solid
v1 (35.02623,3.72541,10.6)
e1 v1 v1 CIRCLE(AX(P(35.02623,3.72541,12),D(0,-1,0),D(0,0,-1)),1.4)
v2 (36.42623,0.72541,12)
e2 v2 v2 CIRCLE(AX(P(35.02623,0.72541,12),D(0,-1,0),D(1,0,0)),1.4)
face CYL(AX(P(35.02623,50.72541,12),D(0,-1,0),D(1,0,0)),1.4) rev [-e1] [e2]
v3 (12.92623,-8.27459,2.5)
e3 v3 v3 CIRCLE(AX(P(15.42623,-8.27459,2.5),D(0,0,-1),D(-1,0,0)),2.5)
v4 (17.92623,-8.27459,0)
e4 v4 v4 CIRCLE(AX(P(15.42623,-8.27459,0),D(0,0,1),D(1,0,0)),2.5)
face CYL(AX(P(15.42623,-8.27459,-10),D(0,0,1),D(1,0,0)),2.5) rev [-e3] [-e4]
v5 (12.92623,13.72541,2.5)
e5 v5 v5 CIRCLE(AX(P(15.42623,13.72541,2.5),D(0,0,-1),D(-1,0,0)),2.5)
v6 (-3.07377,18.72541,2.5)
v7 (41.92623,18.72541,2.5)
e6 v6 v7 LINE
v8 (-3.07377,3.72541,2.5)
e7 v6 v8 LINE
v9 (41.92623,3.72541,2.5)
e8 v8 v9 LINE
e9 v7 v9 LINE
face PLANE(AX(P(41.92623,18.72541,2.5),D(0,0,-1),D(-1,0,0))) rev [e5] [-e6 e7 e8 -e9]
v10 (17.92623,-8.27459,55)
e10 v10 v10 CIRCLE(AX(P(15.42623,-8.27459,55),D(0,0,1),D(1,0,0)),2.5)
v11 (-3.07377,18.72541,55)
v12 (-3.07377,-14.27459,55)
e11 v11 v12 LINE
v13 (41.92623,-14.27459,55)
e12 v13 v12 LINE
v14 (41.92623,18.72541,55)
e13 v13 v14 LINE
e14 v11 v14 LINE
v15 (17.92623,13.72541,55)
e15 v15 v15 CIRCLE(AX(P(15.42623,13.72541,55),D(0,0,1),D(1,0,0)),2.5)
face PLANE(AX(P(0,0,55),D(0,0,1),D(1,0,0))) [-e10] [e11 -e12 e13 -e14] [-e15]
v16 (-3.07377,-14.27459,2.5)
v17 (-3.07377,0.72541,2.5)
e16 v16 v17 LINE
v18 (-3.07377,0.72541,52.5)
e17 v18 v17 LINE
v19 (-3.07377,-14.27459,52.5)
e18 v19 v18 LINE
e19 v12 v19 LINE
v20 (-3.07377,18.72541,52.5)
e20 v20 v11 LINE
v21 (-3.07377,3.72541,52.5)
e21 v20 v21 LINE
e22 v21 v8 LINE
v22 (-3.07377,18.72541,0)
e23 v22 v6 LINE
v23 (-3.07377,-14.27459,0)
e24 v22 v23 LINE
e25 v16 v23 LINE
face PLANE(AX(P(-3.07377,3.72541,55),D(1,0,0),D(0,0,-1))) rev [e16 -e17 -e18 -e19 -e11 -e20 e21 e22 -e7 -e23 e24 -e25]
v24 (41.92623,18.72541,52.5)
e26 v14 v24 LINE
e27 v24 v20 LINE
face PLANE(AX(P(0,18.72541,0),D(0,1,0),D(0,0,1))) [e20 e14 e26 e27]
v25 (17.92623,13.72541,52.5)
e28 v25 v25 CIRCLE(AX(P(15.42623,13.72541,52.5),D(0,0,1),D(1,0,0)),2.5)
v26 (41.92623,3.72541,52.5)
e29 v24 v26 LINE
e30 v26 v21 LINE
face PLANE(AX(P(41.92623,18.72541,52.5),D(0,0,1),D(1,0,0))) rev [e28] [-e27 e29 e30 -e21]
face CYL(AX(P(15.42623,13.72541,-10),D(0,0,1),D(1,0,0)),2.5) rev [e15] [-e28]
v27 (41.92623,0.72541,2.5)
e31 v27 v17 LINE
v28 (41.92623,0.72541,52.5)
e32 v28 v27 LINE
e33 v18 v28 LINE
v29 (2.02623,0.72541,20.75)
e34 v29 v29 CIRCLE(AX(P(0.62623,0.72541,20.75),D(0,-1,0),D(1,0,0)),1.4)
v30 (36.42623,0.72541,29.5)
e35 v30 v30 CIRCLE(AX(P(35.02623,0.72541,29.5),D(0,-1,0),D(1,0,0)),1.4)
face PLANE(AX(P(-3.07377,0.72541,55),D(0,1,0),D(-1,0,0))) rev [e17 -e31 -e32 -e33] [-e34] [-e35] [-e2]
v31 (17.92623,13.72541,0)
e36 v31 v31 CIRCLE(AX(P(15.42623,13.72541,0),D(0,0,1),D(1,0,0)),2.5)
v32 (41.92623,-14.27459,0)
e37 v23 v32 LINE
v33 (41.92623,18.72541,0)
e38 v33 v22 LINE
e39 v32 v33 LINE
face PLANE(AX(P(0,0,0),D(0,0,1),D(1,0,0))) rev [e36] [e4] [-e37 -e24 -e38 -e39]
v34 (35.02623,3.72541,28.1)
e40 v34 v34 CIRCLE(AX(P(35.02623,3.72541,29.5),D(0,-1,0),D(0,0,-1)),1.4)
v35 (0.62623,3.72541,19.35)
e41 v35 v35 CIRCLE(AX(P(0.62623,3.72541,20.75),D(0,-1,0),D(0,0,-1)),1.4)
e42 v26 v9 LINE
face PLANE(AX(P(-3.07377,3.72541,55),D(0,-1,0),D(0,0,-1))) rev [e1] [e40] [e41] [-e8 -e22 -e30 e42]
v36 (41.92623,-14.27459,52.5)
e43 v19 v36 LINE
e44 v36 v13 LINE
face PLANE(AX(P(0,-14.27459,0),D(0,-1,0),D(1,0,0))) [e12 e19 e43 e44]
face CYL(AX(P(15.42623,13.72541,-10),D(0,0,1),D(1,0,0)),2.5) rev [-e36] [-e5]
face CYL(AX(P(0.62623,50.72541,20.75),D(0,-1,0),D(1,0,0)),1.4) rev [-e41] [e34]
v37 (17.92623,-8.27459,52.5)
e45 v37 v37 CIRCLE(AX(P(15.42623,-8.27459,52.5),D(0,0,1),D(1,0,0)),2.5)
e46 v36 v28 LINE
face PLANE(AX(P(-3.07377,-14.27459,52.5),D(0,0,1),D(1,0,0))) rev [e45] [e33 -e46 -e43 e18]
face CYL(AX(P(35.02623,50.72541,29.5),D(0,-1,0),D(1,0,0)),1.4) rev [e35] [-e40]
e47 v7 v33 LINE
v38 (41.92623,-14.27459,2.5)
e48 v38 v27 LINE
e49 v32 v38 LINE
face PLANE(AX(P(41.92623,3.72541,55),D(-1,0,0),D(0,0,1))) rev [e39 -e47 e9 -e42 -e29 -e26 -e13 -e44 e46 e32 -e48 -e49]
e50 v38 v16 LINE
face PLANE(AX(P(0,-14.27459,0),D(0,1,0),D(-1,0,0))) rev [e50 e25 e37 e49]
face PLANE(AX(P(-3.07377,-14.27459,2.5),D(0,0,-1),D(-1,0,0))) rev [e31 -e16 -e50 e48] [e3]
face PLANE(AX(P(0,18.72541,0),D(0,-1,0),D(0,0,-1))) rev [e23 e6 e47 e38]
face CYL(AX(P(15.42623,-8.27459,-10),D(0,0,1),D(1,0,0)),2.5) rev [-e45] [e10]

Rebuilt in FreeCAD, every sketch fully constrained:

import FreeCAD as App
import Part
import Sketcher


def add_polygon(sketch, points):
    """Adds a closed chain of lines whose ends are joined by coincident constraints."""
    first, n = sketch.GeometryCount, len(points)
    for a, b in zip(points, points[1:] + points[:1]):
        sketch.addGeometry(Part.LineSegment(App.Vector(*a, 0), App.Vector(*b, 0)), False)
    for i in range(n):
        sketch.addConstraint(Sketcher.Constraint("Coincident", first + i, 2, first + (i + 1) % n, 1))

doc = App.newDocument("Part")
params = doc.addObject("Spreadsheet::Sheet", "Params")
for row, (alias, value) in enumerate([
    ("sketch1_width", "45 mm"),
    ("sketch1_height", "3 mm"),
    ("pad1_length", "55 mm"),
    ("sketch2_diameter", "2.8 mm"),
    ("pocket1_length", "50 mm"),
    ("sketch3_width", "45 mm"),
    ("sketch3_height", "2.5 mm"),
    ("pad2_length", "15 mm"),
    ("sketch4_diameter", "5 mm"),
    ("pocket2_length", "65 mm"),
    ("sketch5_width", "45 mm"),
    ("sketch5_height", "2.5 mm"),
    ("pad3_length", "15 mm"),
    ("sketch6_diameter", "5 mm"),
    ("pocket3_length", "65 mm"),
], start=1):
    params.set(f"A{row}", alias)
    params.set(f"B{row}", "=" + value)
    params.setAlias(f"B{row}", alias)

body = doc.addObject("PartDesign::Body", "Body")

sketch1 = body.newObject("Sketcher::SketchObject", "Sketch")
sketch1.AttachmentSupport = (doc.getObject("XY_Plane"), [""])
sketch1.MapMode = "FlatFace"
add_polygon(sketch1, [(-3.1, 3.7), (-3.1, 0.7), (41.9, 0.7), (41.9, 3.7)])
sketch1.addConstraint([
    Sketcher.Constraint("Vertical", 0),
    Sketcher.Constraint("Horizontal", 1),
    Sketcher.Constraint("Vertical", 2),
    Sketcher.Constraint("Horizontal", 3),
    Sketcher.Constraint("DistanceX", 1, 1, 1, 2, 45.0),
    Sketcher.Constraint("DistanceY", 0, 2, 0, 1, 3.0),
    Sketcher.Constraint("DistanceX", 0, 2, -1, 1, 3.07377),
    Sketcher.Constraint("DistanceY", -1, 1, 0, 2, 0.72541),
])
sketch1.setExpression("Constraints[8]", "Params.sketch1_width")
sketch1.setExpression("Constraints[9]", "Params.sketch1_height")
pad1 = body.newObject("PartDesign::Pad", "Pad")
pad1.Profile = sketch1
pad1.setExpression("Length", "Params.pad1_length")

sketch2 = body.newObject("Sketcher::SketchObject", "Sketch001")
sketch2.AttachmentSupport = (doc.getObject("XZ_Plane"), [""])
sketch2.MapMode = "FlatFace"
sketch2.AttachmentOffset = App.Placement(App.Vector(0, 0, -0.72541), App.Rotation())
sketch2.addGeometry([
    Part.Circle(App.Vector(0.6, 20.8, 0), App.Vector(0, 0, 1), 1.4),
    Part.Circle(App.Vector(35, 12, 0), App.Vector(0, 0, 1), 1.4),
    Part.Circle(App.Vector(35, 29.5, 0), App.Vector(0, 0, 1), 1.4),
], False)
sketch2.addConstraint([
    Sketcher.Constraint("Equal", 0, 1),
    Sketcher.Constraint("Equal", 1, 2),
    Sketcher.Constraint("Vertical", 1, 3, 2, 3),
    Sketcher.Constraint("Diameter", 0, 2.8),
    Sketcher.Constraint("DistanceY", -1, 1, 1, 3, 12.0),
    Sketcher.Constraint("DistanceY", -1, 1, 2, 3, 29.5),
    Sketcher.Constraint("DistanceX", 0, 3, 1, 3, 34.4),
    Sketcher.Constraint("DistanceY", -1, 1, 0, 3, 20.75),
    Sketcher.Constraint("DistanceX", -1, 1, 0, 3, 0.62623),
])
sketch2.setExpression("Constraints[3]", "Params.sketch2_diameter")
pocket1 = body.newObject("PartDesign::Pocket", "Pocket")
pocket1.Profile = sketch2
pocket1.setExpression("Length", "Params.pocket1_length")

sketch3 = body.newObject("Sketcher::SketchObject", "Sketch002")
sketch3.AttachmentSupport = (doc.getObject("XZ_Plane"), [""])
sketch3.MapMode = "FlatFace"
sketch3.AttachmentOffset = App.Placement(App.Vector(0, 0, -0.72541), App.Rotation())
add_polygon(sketch3, [(-3.1, 55), (-3.1, 52.5), (41.9, 52.5), (41.9, 55)])
add_polygon(sketch3, [(-3.1, 2.5), (-3.1, 0), (41.9, 0), (41.9, 2.5)])
sketch3.addConstraint([
    Sketcher.Constraint("Vertical", 0),
    Sketcher.Constraint("Horizontal", 1),
    Sketcher.Constraint("Vertical", 2),
    Sketcher.Constraint("Horizontal", 3),
    Sketcher.Constraint("Vertical", 4),
    Sketcher.Constraint("Horizontal", 5),
    Sketcher.Constraint("Vertical", 6),
    Sketcher.Constraint("Horizontal", 7),
    Sketcher.Constraint("PointOnObject", 4, 2, -1),
    Sketcher.Constraint("Vertical", 3, 2, 4, 2),
    Sketcher.Constraint("Vertical", 2, 2, 5, 2),
    Sketcher.Constraint("Equal", 2, 4),
    Sketcher.Constraint("DistanceX", 1, 1, 1, 2, 45.0),
    Sketcher.Constraint("DistanceY", 0, 2, 0, 1, 2.5),
    Sketcher.Constraint("DistanceY", -1, 1, 2, 2, 55.0),
    Sketcher.Constraint("DistanceX", 0, 2, -1, 1, 3.07377),
])
sketch3.setExpression("Constraints[20]", "Params.sketch3_width")
sketch3.setExpression("Constraints[21]", "Params.sketch3_height")
pad2 = body.newObject("PartDesign::Pad", "Pad001")
pad2.Profile = sketch3
pad2.setExpression("Length", "Params.pad2_length")

sketch4 = body.newObject("Sketcher::SketchObject", "Sketch003")
sketch4.AttachmentSupport = (doc.getObject("XY_Plane"), [""])
sketch4.MapMode = "FlatFace"
sketch4.AttachmentOffset = App.Placement(App.Vector(0, 0, 55), App.Rotation())
sketch4.addGeometry(Part.Circle(App.Vector(15.4, -8.3, 0), App.Vector(0, 0, 1), 2.5), False)
sketch4.addConstraint([
    Sketcher.Constraint("Diameter", 0, 5.0),
    Sketcher.Constraint("DistanceX", -1, 1, 0, 3, 15.42623),
    Sketcher.Constraint("DistanceY", 0, 3, -1, 1, 8.27459),
])
sketch4.setExpression("Constraints[0]", "Params.sketch4_diameter")
pocket2 = body.newObject("PartDesign::Pocket", "Pocket001")
pocket2.Profile = sketch4
pocket2.setExpression("Length", "Params.pocket2_length")

sketch5 = body.newObject("Sketcher::SketchObject", "Sketch004")
sketch5.AttachmentSupport = (doc.getObject("XZ_Plane"), [""])
sketch5.MapMode = "FlatFace"
sketch5.AttachmentOffset = App.Placement(App.Vector(0, 0, -3.72541), App.Rotation())
add_polygon(sketch5, [(-3.1, 52.5), (-3.1, 55), (41.9, 55), (41.9, 52.5)])
add_polygon(sketch5, [(-3.1, 0), (-3.1, 2.5), (41.9, 2.5), (41.9, 0)])
sketch5.addConstraint([
    Sketcher.Constraint("Vertical", 0),
    Sketcher.Constraint("Horizontal", 1),
    Sketcher.Constraint("Vertical", 2),
    Sketcher.Constraint("Horizontal", 3),
    Sketcher.Constraint("Vertical", 4),
    Sketcher.Constraint("Horizontal", 5),
    Sketcher.Constraint("Vertical", 6),
    Sketcher.Constraint("Horizontal", 7),
    Sketcher.Constraint("PointOnObject", 6, 2, -1),
    Sketcher.Constraint("Vertical", 3, 2, 4, 2),
    Sketcher.Constraint("Vertical", 2, 2, 5, 2),
    Sketcher.Constraint("Equal", 2, 4),
    Sketcher.Constraint("DistanceX", 1, 1, 1, 2, 45.0),
    Sketcher.Constraint("DistanceY", 0, 1, 0, 2, 2.5),
    Sketcher.Constraint("DistanceY", -1, 1, 0, 2, 55.0),
    Sketcher.Constraint("DistanceX", 0, 2, -1, 1, 3.07377),
])
sketch5.setExpression("Constraints[20]", "Params.sketch5_width")
sketch5.setExpression("Constraints[21]", "Params.sketch5_height")
pad3 = body.newObject("PartDesign::Pad", "Pad002")
pad3.Profile = sketch5
pad3.setExpression("Length", "Params.pad3_length")
pad3.Reversed = True

sketch6 = body.newObject("Sketcher::SketchObject", "Sketch005")
sketch6.AttachmentSupport = (doc.getObject("XY_Plane"), [""])
sketch6.MapMode = "FlatFace"
sketch6.AttachmentOffset = App.Placement(App.Vector(0, 0, 55), App.Rotation())
sketch6.addGeometry(Part.Circle(App.Vector(15.4, 13.7, 0), App.Vector(0, 0, 1), 2.5), False)
sketch6.addConstraint([
    Sketcher.Constraint("Diameter", 0, 5.0),
    Sketcher.Constraint("DistanceX", -1, 1, 0, 3, 15.42623),
    Sketcher.Constraint("DistanceY", -1, 1, 0, 3, 13.72541),
])
sketch6.setExpression("Constraints[0]", "Params.sketch6_diameter")
pocket3 = body.newObject("PartDesign::Pocket", "Pocket002")
pocket3.Profile = sketch6
pocket3.setExpression("Length", "Params.pocket3_length")

doc.recompute()
